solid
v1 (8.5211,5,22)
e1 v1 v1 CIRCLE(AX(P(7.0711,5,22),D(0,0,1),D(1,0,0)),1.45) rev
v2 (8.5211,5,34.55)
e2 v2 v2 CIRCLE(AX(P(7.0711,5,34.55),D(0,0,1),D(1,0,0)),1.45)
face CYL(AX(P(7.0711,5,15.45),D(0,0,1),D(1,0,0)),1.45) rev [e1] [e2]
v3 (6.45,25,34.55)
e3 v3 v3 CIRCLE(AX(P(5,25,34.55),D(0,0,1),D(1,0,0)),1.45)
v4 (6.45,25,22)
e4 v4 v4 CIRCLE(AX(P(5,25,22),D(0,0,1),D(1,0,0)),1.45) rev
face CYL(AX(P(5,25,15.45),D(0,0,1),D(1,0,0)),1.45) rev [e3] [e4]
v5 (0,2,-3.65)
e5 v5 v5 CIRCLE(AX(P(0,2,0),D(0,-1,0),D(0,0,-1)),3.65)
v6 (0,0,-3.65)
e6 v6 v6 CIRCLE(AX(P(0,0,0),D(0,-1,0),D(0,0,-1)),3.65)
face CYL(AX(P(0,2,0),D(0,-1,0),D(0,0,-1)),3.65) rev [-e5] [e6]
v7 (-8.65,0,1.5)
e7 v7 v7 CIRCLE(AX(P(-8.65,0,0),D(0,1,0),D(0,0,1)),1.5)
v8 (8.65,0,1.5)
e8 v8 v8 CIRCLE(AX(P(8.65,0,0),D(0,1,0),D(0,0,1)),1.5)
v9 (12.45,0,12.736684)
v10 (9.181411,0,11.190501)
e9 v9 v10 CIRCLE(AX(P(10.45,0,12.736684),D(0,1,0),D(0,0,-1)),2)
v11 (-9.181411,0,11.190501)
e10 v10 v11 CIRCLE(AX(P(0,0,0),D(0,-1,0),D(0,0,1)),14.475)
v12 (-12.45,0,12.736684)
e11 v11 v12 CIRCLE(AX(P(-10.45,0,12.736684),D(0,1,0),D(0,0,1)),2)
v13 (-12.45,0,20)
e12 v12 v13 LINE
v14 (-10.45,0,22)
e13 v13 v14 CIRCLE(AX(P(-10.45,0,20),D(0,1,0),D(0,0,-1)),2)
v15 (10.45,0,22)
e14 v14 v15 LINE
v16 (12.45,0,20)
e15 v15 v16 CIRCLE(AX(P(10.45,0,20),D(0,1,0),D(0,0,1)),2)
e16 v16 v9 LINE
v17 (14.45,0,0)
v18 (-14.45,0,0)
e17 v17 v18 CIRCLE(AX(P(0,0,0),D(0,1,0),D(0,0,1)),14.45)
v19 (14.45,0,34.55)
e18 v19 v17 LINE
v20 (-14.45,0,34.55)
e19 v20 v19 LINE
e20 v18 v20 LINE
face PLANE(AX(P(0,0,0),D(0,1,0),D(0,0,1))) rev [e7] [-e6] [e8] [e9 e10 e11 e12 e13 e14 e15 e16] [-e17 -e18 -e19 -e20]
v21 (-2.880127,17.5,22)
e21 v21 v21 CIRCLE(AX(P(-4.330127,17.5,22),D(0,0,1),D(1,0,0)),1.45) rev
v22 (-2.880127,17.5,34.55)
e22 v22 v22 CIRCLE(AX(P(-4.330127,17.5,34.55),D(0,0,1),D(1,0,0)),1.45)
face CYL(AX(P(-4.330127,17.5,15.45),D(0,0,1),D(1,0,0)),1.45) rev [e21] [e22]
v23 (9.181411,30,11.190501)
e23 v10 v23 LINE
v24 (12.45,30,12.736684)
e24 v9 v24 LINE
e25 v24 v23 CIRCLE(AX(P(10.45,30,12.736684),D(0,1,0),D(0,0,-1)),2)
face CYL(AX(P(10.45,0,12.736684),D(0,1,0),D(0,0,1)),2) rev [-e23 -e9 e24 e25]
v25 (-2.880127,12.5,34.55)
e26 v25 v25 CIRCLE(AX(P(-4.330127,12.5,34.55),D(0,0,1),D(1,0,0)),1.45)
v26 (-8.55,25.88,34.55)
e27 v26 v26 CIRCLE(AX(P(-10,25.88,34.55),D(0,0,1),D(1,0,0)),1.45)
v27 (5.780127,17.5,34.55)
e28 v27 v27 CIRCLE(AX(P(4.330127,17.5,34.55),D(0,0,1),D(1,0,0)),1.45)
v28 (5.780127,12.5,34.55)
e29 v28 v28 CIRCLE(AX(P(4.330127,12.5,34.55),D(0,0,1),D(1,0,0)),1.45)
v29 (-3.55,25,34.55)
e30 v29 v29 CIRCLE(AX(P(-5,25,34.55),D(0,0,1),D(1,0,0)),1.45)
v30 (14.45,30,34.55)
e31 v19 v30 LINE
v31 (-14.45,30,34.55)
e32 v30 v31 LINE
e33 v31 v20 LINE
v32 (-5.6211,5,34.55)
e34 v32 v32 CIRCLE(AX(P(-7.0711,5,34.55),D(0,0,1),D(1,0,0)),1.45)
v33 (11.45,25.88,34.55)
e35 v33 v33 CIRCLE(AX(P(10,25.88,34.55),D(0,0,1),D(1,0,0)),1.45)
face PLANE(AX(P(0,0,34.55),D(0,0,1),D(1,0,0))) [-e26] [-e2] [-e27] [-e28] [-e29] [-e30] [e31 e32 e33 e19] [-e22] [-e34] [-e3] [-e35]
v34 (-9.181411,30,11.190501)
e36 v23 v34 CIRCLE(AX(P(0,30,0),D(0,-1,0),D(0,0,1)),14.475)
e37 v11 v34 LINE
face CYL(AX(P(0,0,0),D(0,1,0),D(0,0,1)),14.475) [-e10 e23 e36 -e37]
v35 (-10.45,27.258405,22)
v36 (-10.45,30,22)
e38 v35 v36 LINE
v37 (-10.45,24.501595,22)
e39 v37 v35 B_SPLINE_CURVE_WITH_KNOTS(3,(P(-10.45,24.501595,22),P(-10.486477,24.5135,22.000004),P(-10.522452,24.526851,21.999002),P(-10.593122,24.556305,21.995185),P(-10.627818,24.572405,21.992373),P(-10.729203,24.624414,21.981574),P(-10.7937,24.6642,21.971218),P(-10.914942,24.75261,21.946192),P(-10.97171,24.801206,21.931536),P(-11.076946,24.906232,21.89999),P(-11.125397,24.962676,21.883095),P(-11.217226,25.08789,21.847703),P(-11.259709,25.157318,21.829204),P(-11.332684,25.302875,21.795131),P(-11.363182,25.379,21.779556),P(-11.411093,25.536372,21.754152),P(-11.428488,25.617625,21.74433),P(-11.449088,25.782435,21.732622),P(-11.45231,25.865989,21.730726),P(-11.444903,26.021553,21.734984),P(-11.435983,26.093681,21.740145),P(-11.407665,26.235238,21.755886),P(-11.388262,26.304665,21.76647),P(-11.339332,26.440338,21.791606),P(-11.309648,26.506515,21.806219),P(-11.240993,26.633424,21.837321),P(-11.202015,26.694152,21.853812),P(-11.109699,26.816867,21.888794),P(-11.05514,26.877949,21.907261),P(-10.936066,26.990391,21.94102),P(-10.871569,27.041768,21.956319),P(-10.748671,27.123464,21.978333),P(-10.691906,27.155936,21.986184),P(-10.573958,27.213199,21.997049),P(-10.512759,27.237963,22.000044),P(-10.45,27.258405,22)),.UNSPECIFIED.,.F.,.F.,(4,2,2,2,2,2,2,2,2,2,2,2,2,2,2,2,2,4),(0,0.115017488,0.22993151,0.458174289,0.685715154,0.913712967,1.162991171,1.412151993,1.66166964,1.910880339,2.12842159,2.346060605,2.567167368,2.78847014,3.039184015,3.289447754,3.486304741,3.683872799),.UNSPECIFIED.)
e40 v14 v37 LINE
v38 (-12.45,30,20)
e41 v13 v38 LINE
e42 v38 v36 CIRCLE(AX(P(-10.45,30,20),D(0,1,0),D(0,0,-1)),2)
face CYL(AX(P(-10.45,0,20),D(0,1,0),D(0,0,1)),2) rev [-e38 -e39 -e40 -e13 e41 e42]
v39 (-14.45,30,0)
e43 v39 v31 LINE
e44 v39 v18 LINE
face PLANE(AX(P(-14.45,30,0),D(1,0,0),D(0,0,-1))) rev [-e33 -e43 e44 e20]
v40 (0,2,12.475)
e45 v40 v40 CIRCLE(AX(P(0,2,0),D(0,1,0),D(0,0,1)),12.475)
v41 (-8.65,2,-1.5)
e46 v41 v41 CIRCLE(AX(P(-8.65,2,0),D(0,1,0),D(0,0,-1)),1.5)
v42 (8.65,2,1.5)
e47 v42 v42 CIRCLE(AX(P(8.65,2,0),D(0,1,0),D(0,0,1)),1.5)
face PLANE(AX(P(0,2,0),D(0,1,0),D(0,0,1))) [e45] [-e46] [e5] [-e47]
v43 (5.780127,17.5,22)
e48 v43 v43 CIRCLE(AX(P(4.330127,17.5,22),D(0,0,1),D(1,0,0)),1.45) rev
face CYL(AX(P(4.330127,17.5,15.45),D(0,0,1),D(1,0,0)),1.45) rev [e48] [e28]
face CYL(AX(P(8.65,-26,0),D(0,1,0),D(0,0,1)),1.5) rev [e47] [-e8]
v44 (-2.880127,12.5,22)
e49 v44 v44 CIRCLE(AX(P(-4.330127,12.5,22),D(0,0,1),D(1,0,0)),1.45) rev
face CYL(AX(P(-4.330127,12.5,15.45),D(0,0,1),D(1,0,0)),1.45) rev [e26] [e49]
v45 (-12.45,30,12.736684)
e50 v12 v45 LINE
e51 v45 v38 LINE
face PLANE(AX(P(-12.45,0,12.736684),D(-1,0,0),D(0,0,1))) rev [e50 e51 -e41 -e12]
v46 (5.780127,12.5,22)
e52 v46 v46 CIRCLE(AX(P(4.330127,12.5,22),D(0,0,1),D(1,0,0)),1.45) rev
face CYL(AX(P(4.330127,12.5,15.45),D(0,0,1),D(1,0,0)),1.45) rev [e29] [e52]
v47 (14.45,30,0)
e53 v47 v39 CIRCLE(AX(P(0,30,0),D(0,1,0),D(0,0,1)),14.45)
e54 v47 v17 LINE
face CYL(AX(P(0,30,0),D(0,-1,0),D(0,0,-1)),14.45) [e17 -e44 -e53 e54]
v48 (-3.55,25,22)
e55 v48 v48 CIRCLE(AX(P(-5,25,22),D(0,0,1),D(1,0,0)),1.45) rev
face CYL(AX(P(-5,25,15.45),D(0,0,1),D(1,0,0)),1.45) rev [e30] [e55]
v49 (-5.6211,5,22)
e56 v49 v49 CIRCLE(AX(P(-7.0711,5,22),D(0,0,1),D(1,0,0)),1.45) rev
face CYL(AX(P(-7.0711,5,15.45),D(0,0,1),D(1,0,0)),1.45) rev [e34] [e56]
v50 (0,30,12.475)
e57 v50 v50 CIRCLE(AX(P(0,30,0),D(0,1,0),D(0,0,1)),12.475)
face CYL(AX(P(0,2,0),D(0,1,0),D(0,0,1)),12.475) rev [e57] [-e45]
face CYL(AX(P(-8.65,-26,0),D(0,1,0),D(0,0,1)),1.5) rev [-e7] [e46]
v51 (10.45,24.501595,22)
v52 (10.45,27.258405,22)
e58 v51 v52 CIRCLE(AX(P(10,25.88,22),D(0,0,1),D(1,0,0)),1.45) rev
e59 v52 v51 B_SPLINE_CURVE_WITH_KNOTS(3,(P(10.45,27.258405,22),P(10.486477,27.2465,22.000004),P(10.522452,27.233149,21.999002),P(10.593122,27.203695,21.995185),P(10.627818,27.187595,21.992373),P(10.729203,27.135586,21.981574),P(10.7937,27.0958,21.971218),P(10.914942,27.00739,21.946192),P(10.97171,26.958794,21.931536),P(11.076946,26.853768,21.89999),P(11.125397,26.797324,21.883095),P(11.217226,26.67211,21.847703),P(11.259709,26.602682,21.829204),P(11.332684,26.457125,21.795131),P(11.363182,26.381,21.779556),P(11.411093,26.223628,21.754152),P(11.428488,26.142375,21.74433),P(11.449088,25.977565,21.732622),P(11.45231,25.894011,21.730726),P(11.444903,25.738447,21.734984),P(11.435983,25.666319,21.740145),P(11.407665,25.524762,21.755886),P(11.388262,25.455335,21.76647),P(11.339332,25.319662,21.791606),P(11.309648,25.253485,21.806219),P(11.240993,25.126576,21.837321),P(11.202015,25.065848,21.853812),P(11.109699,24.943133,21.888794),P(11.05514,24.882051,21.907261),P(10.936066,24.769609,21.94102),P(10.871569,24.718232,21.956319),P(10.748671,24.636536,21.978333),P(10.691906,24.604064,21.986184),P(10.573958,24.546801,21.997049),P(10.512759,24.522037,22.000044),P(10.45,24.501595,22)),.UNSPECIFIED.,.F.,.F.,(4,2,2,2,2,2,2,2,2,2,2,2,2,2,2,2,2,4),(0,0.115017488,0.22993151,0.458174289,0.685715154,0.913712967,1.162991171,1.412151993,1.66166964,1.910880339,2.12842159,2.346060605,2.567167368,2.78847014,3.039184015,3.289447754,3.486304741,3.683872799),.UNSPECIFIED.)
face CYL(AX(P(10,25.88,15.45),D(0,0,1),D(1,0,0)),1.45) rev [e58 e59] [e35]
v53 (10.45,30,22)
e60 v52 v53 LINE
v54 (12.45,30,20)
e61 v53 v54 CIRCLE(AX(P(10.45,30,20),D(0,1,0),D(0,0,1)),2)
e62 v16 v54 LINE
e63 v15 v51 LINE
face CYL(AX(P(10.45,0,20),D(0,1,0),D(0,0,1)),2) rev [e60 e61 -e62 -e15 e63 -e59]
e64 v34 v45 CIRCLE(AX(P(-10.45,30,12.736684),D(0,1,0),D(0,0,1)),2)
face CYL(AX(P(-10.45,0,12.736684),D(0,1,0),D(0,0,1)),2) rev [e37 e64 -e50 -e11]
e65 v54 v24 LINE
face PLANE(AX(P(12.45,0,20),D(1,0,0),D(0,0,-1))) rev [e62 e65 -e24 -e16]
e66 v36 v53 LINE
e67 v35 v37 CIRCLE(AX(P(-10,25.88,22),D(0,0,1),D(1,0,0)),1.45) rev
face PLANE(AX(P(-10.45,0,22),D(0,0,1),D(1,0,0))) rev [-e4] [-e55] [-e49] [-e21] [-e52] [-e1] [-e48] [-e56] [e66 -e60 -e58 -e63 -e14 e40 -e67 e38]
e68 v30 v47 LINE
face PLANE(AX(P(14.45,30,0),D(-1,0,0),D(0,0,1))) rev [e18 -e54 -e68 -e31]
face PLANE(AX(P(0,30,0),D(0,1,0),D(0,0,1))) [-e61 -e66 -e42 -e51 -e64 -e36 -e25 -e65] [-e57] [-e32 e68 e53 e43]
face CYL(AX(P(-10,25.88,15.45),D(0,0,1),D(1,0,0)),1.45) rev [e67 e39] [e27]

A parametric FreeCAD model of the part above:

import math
import FreeCAD as App
import Part
import Sketcher
from FreeCAD import Vector

doc = App.newDocument("Part")
body = doc.addObject("PartDesign::Body", "Body")

# Sketch on XZ plane
sketch1 = body.newObject("Sketcher::SketchObject", "Sketch")
sketch1.AttachmentSupport = (doc.getObject("XZ_Plane"), [""])
sketch1.MapMode = "FlatFace"
sketch1.addGeometry(Part.Circle(Vector(0, 0, 0), Vector(0, 0, 1), 14), False)
sketch1.addConstraint(Sketcher.Constraint("Coincident", 0, 3, -1, 1))
sketch1.addConstraint(Sketcher.Constraint("Diameter", 0, 28.9))
pad1 = body.newObject("PartDesign::Pad", "Pad")
pad1.Profile = sketch1
pad1.Length = 30
pad1.Reversed = True

# Sketch on XZ plane
sketch2 = body.newObject("Sketcher::SketchObject", "Sketch001")
sketch2.AttachmentSupport = (doc.getObject("XZ_Plane"), [""])
sketch2.MapMode = "FlatFace"
sketch2.addGeometry(Part.LineSegment(Vector(-14, 0, 0), Vector(-14, 18, 0)), False)
sketch2.addGeometry(Part.LineSegment(Vector(-14, 18, 0), Vector(14, 18, 0)), False)
sketch2.addGeometry(Part.LineSegment(Vector(14, 18, 0), Vector(14, 0, 0)), False)
sketch2.addGeometry(Part.LineSegment(Vector(14, 0, 0), Vector(-14, 0, 0)), False)
sketch2.addConstraint(Sketcher.Constraint("Coincident", 0, 2, 1, 1))
sketch2.addConstraint(Sketcher.Constraint("Coincident", 1, 2, 2, 1))
sketch2.addConstraint(Sketcher.Constraint("Coincident", 2, 2, 3, 1))
sketch2.addConstraint(Sketcher.Constraint("Coincident", 3, 2, 0, 1))
sketch2.addConstraint(Sketcher.Constraint("Vertical", 0))
sketch2.addConstraint(Sketcher.Constraint("Horizontal", 1))
sketch2.addConstraint(Sketcher.Constraint("Vertical", 2))
sketch2.addConstraint(Sketcher.Constraint("Horizontal", 3))
sketch2.addConstraint(Sketcher.Constraint("Symmetric", 2, 2, 3, 2, -1, 1))
sketch2.addConstraint(Sketcher.Constraint("DistanceX", 1, 1, 1, 2, 28.9))
sketch2.addConstraint(Sketcher.Constraint("DistanceY", 0, 1, 0, 2, 18.45))
pad2 = body.newObject("PartDesign::Pad", "Pad001")
pad2.Profile = sketch2
pad2.Length = 30
pad2.Reversed = True

# Sketch on XZ plane
sketch3 = body.newObject("Sketcher::SketchObject", "Sketch002")
sketch3.AttachmentSupport = (doc.getObject("XZ_Plane"), [""])
sketch3.MapMode = "FlatFace"
sketch3.AttachmentOffset = App.Placement(Vector(0, 0, -30), App.Rotation())
sketch3.addGeometry(Part.Circle(Vector(0, 0, 0), Vector(0, 0, 1), 12), False)
sketch3.addConstraint(Sketcher.Constraint("Coincident", 0, 3, -1, 1))
sketch3.addConstraint(Sketcher.Constraint("Diameter", 0, 24.95))
pocket1 = body.newObject("PartDesign::Pocket", "Pocket")
pocket1.Profile = sketch3
pocket1.Length = 28
pocket1.Reversed = True

# Sketch on XZ plane
sketch4 = body.newObject("Sketcher::SketchObject", "Sketch003")
sketch4.AttachmentSupport = (doc.getObject("XZ_Plane"), [""])
sketch4.MapMode = "FlatFace"
sketch4.AttachmentOffset = App.Placement(Vector(0, 0, -2), App.Rotation())
sketch4.addGeometry(Part.Circle(Vector(8.7, 0, 0), Vector(0, 0, 1), 1.5), False)
sketch4.addGeometry(Part.Circle(Vector(-8.7, 0, 0), Vector(0, 0, 1), 1.5), False)
sketch4.addConstraint(Sketcher.Constraint("Equal", 0, 1))
sketch4.addConstraint(Sketcher.Constraint("Symmetric", 0, 3, 1, 3, -1, 1))
sketch4.addConstraint(Sketcher.Constraint("PointOnObject", 0, 3, -1))
sketch4.addConstraint(Sketcher.Constraint("Diameter", 0, 3.0))
sketch4.addConstraint(Sketcher.Constraint("DistanceX", 1, 3, 0, 3, 17.3))
pocket2 = body.newObject("PartDesign::Pocket", "Pocket001")
pocket2.Profile = sketch4
pocket2.Length = 28
pocket2.Reversed = True

# Sketch on XY plane
sketch5 = body.newObject("Sketcher::SketchObject", "Sketch004")
sketch5.AttachmentSupport = (doc.getObject("XY_Plane"), [""])
sketch5.MapMode = "FlatFace"
sketch5.AttachmentOffset = App.Placement(Vector(0, 0, 18.45), App.Rotation())
sketch5.addGeometry(Part.Circle(Vector(-5, 25, 0), Vector(0, 0, 1), 1.4), False)
sketch5.addGeometry(Part.Circle(Vector(5, 25, 0), Vector(0, 0, 1), 1.4), False)
sketch5.addGeometry(Part.Circle(Vector(-7.1, 5, 0), Vector(0, 0, 1), 1.4), False)
sketch5.addGeometry(Part.Circle(Vector(7.1, 5, 0), Vector(0, 0, 1), 1.4), False)
sketch5.addGeometry(Part.Circle(Vector(-4.3, 17.5, 0), Vector(0, 0, 1), 1.4), False)
sketch5.addGeometry(Part.Circle(Vector(4.3, 12.5, 0), Vector(0, 0, 1), 1.4), False)
sketch5.addGeometry(Part.Circle(Vector(-10, 25.9, 0), Vector(0, 0, 1), 1.4), False)
sketch5.addGeometry(Part.Circle(Vector(10, 25.9, 0), Vector(0, 0, 1), 1.4), False)
sketch5.addGeometry(Part.Circle(Vector(-4.3, 12.5, 0), Vector(0, 0, 1), 1.4), False)
sketch5.addGeometry(Part.Circle(Vector(4.3, 17.5, 0), Vector(0, 0, 1), 1.4), False)
sketch5.addConstraint(Sketcher.Constraint("Equal", 0, 1))
sketch5.addConstraint(Sketcher.Constraint("Equal", 1, 2))
sketch5.addConstraint(Sketcher.Constraint("Equal", 2, 3))
sketch5.addConstraint(Sketcher.Constraint("Equal", 3, 4))
sketch5.addConstraint(Sketcher.Constraint("Equal", 4, 5))
sketch5.addConstraint(Sketcher.Constraint("Equal", 5, 6))
sketch5.addConstraint(Sketcher.Constraint("Equal", 6, 7))
sketch5.addConstraint(Sketcher.Constraint("Equal", 7, 8))
sketch5.addConstraint(Sketcher.Constraint("Equal", 8, 9))
sketch5.addConstraint(Sketcher.Constraint("Symmetric", 0, 3, 1, 3, -2))
sketch5.addConstraint(Sketcher.Constraint("Symmetric", 2, 3, 3, 3, -2))
sketch5.addConstraint(Sketcher.Constraint("Symmetric", 6, 3, 7, 3, -2))
sketch5.addConstraint(Sketcher.Constraint("Symmetric", 5, 3, 8, 3, -2))
sketch5.addConstraint(Sketcher.Constraint("Symmetric", 4, 3, 9, 3, -2))
sketch5.addConstraint(Sketcher.Constraint("Vertical", 4, 3, 8, 3))
sketch5.addConstraint(Sketcher.Constraint("Diameter", 0, 2.9))
sketch5.addConstraint(Sketcher.Constraint("DistanceX", 0, 3, -1, 1, 5.0))
sketch5.addConstraint(Sketcher.Constraint("DistanceY", -1, 1, 0, 3, 25.0))
sketch5.addConstraint(Sketcher.Constraint("DistanceY", -1, 1, 2, 3, 5.0))
sketch5.addConstraint(Sketcher.Constraint("DistanceX", 6, 3, -1, 1, 10.0))
sketch5.addConstraint(Sketcher.Constraint("DistanceY", 5, 3, 4, 3, 5.0))
sketch5.addConstraint(Sketcher.Constraint("DistanceY", -1, 1, 4, 3, 17.5))
sketch5.addConstraint(Sketcher.Constraint("DistanceY", -1, 1, 6, 3, 25.88))
sketch5.addConstraint(Sketcher.Constraint("DistanceX", 2, 3, -1, 1, 7.0711))
sketch5.addConstraint(Sketcher.Constraint("DistanceX", 4, 3, -1, 1, 4.330127))
pocket3 = body.newObject("PartDesign::Pocket", "Pocket002")
pocket3.Profile = sketch5
pocket3.Length = 3

# Sketch on XZ plane
sketch6 = body.newObject("Sketcher::SketchObject", "Sketch005")
sketch6.AttachmentSupport = (doc.getObject("XZ_Plane"), [""])
sketch6.MapMode = "FlatFace"
sketch6.addGeometry(Part.Circle(Vector(0, 0, 0), Vector(0, 0, 1), 3.6), False)
sketch6.addConstraint(Sketcher.Constraint("Coincident", 0, 3, -1, 1))
sketch6.addConstraint(Sketcher.Constraint("Diameter", 0, 7.3))
pocket4 = body.newObject("PartDesign::Pocket", "Pocket003")
pocket4.Profile = sketch6
pocket4.Length = 2

# Sketch on XY plane
sketch7 = body.newObject("Sketcher::SketchObject", "Sketch006")
sketch7.AttachmentSupport = (doc.getObject("XY_Plane"), [""])
sketch7.MapMode = "FlatFace"
sketch7.AttachmentOffset = App.Placement(Vector(0, 0, 34.55), App.Rotation())
sketch7.addGeometry(Part.LineSegment(Vector(-14.4, 30, 0), Vector(-14.4, 0, 0)), False)
sketch7.addGeometry(Part.LineSegment(Vector(-14.4, 0, 0), Vector(14.4, 0, 0)), False)
sketch7.addGeometry(Part.LineSegment(Vector(14.4, 0, 0), Vector(14.4, 30, 0)), False)
sketch7.addGeometry(Part.LineSegment(Vector(14.4, 30, 0), Vector(-14.4, 30, 0)), False)
sketch7.addGeometry(Part.Circle(Vector(-7.1, 5, 0), Vector(0, 0, 1), 1.4), False)
sketch7.addGeometry(Part.Circle(Vector(-4.3, 12.5, 0), Vector(0, 0, 1), 1.4), False)
sketch7.addGeometry(Part.Circle(Vector(7.1, 5, 0), Vector(0, 0, 1), 1.4), False)
sketch7.addGeometry(Part.Circle(Vector(4.3, 12.5, 0), Vector(0, 0, 1), 1.4), False)
sketch7.addGeometry(Part.Circle(Vector(-4.3, 17.5, 0), Vector(0, 0, 1), 1.4), False)
sketch7.addGeometry(Part.Circle(Vector(-10, 25.9, 0), Vector(0, 0, 1), 1.4), False)
sketch7.addGeometry(Part.Circle(Vector(-5, 25, 0), Vector(0, 0, 1), 1.4), False)
sketch7.addGeometry(Part.Circle(Vector(4.3, 17.5, 0), Vector(0, 0, 1), 1.4), False)
sketch7.addGeometry(Part.Circle(Vector(5, 25, 0), Vector(0, 0, 1), 1.4), False)
sketch7.addGeometry(Part.Circle(Vector(10, 25.9, 0), Vector(0, 0, 1), 1.4), False)
sketch7.addConstraint(Sketcher.Constraint("Coincident", 0, 2, 1, 1))
sketch7.addConstraint(Sketcher.Constraint("Coincident", 1, 2, 2, 1))
sketch7.addConstraint(Sketcher.Constraint("Coincident", 2, 2, 3, 1))
sketch7.addConstraint(Sketcher.Constraint("Coincident", 3, 2, 0, 1))
sketch7.addConstraint(Sketcher.Constraint("Vertical", 0))
sketch7.addConstraint(Sketcher.Constraint("Horizontal", 1))
sketch7.addConstraint(Sketcher.Constraint("Vertical", 2))
sketch7.addConstraint(Sketcher.Constraint("Horizontal", 3))
sketch7.addConstraint(Sketcher.Constraint("Equal", 4, 5))
sketch7.addConstraint(Sketcher.Constraint("Equal", 5, 6))
sketch7.addConstraint(Sketcher.Constraint("Equal", 6, 7))
sketch7.addConstraint(Sketcher.Constraint("Equal", 7, 8))
sketch7.addConstraint(Sketcher.Constraint("Equal", 8, 9))
sketch7.addConstraint(Sketcher.Constraint("Equal", 9, 10))
sketch7.addConstraint(Sketcher.Constraint("Equal", 10, 11))
sketch7.addConstraint(Sketcher.Constraint("Equal", 11, 12))
sketch7.addConstraint(Sketcher.Constraint("Equal", 12, 13))
sketch7.addConstraint(Sketcher.Constraint("Symmetric", 0, 2, 1, 2, -1, 1))
sketch7.addConstraint(Sketcher.Constraint("Symmetric", 4, 3, 6, 3, -2))
sketch7.addConstraint(Sketcher.Constraint("Symmetric", 5, 3, 7, 3, -2))
sketch7.addConstraint(Sketcher.Constraint("Symmetric", 8, 3, 11, 3, -2))
sketch7.addConstraint(Sketcher.Constraint("Symmetric", 10, 3, 12, 3, -2))
sketch7.addConstraint(Sketcher.Constraint("Symmetric", 9, 3, 13, 3, -2))
sketch7.addConstraint(Sketcher.Constraint("Vertical", 5, 3, 8, 3))
sketch7.addConstraint(Sketcher.Constraint("Diameter", 4, 2.9))
sketch7.addConstraint(Sketcher.Constraint("DistanceY", 0, 2, 0, 1, 30.0))
sketch7.addConstraint(Sketcher.Constraint("DistanceX", 1, 1, 1, 2, 28.9))
sketch7.addConstraint(Sketcher.Constraint("DistanceY", -1, 1, 4, 3, 5.0))
sketch7.addConstraint(Sketcher.Constraint("DistanceX", 9, 3, -1, 1, 10.0))
sketch7.addConstraint(Sketcher.Constraint("DistanceX", 10, 3, -1, 1, 5.0))
sketch7.addConstraint(Sketcher.Constraint("DistanceY", -1, 1, 10, 3, 25.0))
sketch7.addConstraint(Sketcher.Constraint("DistanceY", 5, 3, 8, 3, 5.0))
sketch7.addConstraint(Sketcher.Constraint("DistanceY", -1, 1, 5, 3, 12.5))
sketch7.addConstraint(Sketcher.Constraint("DistanceY", -1, 1, 9, 3, 25.88))
sketch7.addConstraint(Sketcher.Constraint("DistanceX", 4, 3, -1, 1, 7.0711))
sketch7.addConstraint(Sketcher.Constraint("DistanceX", 5, 3, -1, 1, 4.330127))
pad3 = body.newObject("PartDesign::Pad", "Pad002")
pad3.Profile = sketch7
pad3.Length = 16.1
pad3.Reversed = True

# Sketch on XZ plane
sketch8 = body.newObject("Sketcher::SketchObject", "Sketch007")
sketch8.AttachmentSupport = (doc.getObject("XZ_Plane"), [""])
sketch8.MapMode = "FlatFace"
sketch8.AttachmentOffset = App.Placement(Vector(0, 0, -30), App.Rotation())
sketch8.addGeometry(Part.LineSegment(Vector(-10.4, 22, 0), Vector(10.4, 22, 0)), False)
sketch8.addGeometry(Part.ArcOfCircle(Part.Circle(Vector(10.4, 20, 0), Vector(0, 0, 1), 2), math.radians(0), math.radians(90)), False)
sketch8.addGeometry(Part.LineSegment(Vector(12.4, 20, 0), Vector(12.4, 12.7, 0)), False)
sketch8.addGeometry(Part.ArcOfCircle(Part.Circle(Vector(10.4, 12.7, 0), Vector(0, 0, 1), 2), math.radians(-129), math.radians(0)), False)
sketch8.addGeometry(Part.ArcOfCircle(Part.Circle(Vector(0, 0, 0), Vector(0, 0, 1), 14.5), math.radians(51), math.radians(129)), False)
sketch8.addGeometry(Part.ArcOfCircle(Part.Circle(Vector(-10.4, 12.7, 0), Vector(0, 0, 1), 2), math.radians(180), math.radians(309)), False)
sketch8.addGeometry(Part.LineSegment(Vector(-12.4, 12.7, 0), Vector(-12.4, 20, 0)), False)
sketch8.addGeometry(Part.ArcOfCircle(Part.Circle(Vector(-10.4, 20, 0), Vector(0, 0, 1), 2), math.radians(90), math.radians(180)), False)
sketch8.addConstraint(Sketcher.Constraint("Tangent", 0, 2, 1, 2))
sketch8.addConstraint(Sketcher.Constraint("Tangent", 1, 1, 2, 1))
sketch8.addConstraint(Sketcher.Constraint("Tangent", 2, 2, 3, 2))
sketch8.addConstraint(Sketcher.Constraint("Tangent", 3, 1, 4, 1))
sketch8.addConstraint(Sketcher.Constraint("Tangent", 4, 2, 5, 2))
sketch8.addConstraint(Sketcher.Constraint("Tangent", 5, 1, 6, 1))
sketch8.addConstraint(Sketcher.Constraint("Tangent", 6, 2, 7, 2))
sketch8.addConstraint(Sketcher.Constraint("Tangent", 7, 1, 0, 1))
sketch8.addConstraint(Sketcher.Constraint("Horizontal", 0))
sketch8.addConstraint(Sketcher.Constraint("Vertical", 2))
sketch8.addConstraint(Sketcher.Constraint("Vertical", 6))
sketch8.addConstraint(Sketcher.Constraint("Coincident", 4, 3, -1, 1))
sketch8.addConstraint(Sketcher.Constraint("Equal", 1, 3))
sketch8.addConstraint(Sketcher.Constraint("Equal", 3, 5))
sketch8.addConstraint(Sketcher.Constraint("Equal", 5, 7))
sketch8.addConstraint(Sketcher.Constraint("Horizontal", 3, 3, 5, 3))
sketch8.addConstraint(Sketcher.Constraint("Radius", 1, 2.0))
sketch8.addConstraint(Sketcher.Constraint("DistanceX", 0, 1, 0, 2, 20.9))
sketch8.addConstraint(Sketcher.Constraint("DistanceY", -1, 1, 1, 3, 20.0))
sketch8.addConstraint(Sketcher.Constraint("Radius", 4, 14.475))
pocket5 = body.newObject("PartDesign::Pocket", "Pocket004")
pocket5.Profile = sketch8
pocket5.Type = "ThroughAll"
pocket5.Reversed = True

doc.recompute()
